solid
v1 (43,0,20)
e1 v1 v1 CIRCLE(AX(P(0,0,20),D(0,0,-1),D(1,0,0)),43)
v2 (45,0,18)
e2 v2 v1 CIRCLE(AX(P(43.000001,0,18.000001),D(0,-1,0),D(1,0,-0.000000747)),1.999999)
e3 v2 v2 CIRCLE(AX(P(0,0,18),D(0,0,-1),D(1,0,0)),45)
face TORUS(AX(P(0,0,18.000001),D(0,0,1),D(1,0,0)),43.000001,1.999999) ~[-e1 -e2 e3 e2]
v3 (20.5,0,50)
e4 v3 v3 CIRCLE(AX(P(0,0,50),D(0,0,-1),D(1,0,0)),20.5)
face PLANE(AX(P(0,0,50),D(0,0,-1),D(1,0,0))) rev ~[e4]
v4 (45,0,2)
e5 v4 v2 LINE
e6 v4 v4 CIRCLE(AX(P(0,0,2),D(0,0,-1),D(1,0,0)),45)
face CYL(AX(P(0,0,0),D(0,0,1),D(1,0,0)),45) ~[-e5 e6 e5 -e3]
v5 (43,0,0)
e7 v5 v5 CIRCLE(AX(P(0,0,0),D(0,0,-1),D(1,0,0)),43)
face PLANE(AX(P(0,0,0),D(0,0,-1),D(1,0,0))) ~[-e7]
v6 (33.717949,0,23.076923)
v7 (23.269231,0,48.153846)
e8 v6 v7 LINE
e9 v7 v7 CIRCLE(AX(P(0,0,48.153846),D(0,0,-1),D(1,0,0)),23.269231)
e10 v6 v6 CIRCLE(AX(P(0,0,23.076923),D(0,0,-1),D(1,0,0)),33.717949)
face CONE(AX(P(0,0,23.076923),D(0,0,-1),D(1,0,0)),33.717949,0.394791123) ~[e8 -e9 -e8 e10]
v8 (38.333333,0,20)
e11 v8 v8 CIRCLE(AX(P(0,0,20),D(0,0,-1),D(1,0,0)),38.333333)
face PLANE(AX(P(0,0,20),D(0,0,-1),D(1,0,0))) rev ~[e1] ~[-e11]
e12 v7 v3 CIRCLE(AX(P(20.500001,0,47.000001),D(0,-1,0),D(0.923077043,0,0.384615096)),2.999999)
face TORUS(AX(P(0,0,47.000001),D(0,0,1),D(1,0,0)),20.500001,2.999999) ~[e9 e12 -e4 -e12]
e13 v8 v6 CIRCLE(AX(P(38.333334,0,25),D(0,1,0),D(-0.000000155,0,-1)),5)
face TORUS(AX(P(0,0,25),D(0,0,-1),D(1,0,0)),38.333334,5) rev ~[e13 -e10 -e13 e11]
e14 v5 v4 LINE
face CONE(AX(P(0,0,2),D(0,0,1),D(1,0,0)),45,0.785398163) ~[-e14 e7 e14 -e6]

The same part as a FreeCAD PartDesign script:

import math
import FreeCAD as App
import Part
import Sketcher
Q = App.Units.Quantity


def edges_at(feature, points):
    """Names of the edges that pass closest to the given points."""
    edges = feature.Shape.Edges
    near = lambda p: min(range(len(edges)), key=lambda i: edges[i].distToShape(Part.Vertex(*p))[0])
    return sorted({f"Edge{near(p) + 1}" for p in points})

doc = App.newDocument("Part")
body = doc.addObject("PartDesign::Body", "Body")

sketch1 = body.newObject("Sketcher::SketchObject", "Sketch")
sketch1.AttachmentSupport = (doc.getObject("XZ_Plane"), [""])
sketch1.MapMode = "FlatFace"
sketch1.addGeometry(Part.LineSegment(App.Vector(20.5, 50, 0), App.Vector(0, 50, 0)), False)
sketch1.addGeometry(Part.LineSegment(App.Vector(0, 50, 0), App.Vector(0, 0, 0)), False)
sketch1.addGeometry(Part.LineSegment(App.Vector(0, 0, 0), App.Vector(45, 0, 0)), False)
sketch1.addGeometry(Part.LineSegment(App.Vector(45, 0, 0), App.Vector(45, 18, 0)), False)
sketch1.addGeometry(Part.ArcOfCircle(Part.Circle(App.Vector(43, 18, 0), App.Vector(0, 0, 1), 2), math.radians(0), math.radians(90)), False)
sketch1.addGeometry(Part.LineSegment(App.Vector(43, 20, 0), App.Vector(38.3, 20, 0)), False)
sketch1.addGeometry(Part.ArcOfCircle(Part.Circle(App.Vector(38.3, 25, 0), App.Vector(0, 0, 1), 5), math.radians(-157), math.radians(-90)), False)
sketch1.addGeometry(Part.LineSegment(App.Vector(33.7, 23.1, 0), App.Vector(23.3, 48.2, 0)), False)
sketch1.addGeometry(Part.ArcOfCircle(Part.Circle(App.Vector(20.5, 47, 0), App.Vector(0, 0, 1), 3), math.radians(23), math.radians(90)), False)
sketch1.addConstraint(Sketcher.Constraint("Coincident", 0, 2, 1, 1))
sketch1.addConstraint(Sketcher.Constraint("Coincident", 1, 2, 2, 1))
sketch1.addConstraint(Sketcher.Constraint("Coincident", 2, 2, 3, 1))
sketch1.addConstraint(Sketcher.Constraint("Tangent", 3, 2, 4, 1))
sketch1.addConstraint(Sketcher.Constraint("Tangent", 4, 2, 5, 1))
sketch1.addConstraint(Sketcher.Constraint("Tangent", 5, 2, 6, 2))
sketch1.addConstraint(Sketcher.Constraint("Tangent", 6, 1, 7, 1))
sketch1.addConstraint(Sketcher.Constraint("Tangent", 7, 2, 8, 1))
sketch1.addConstraint(Sketcher.Constraint("Tangent", 8, 2, 0, 1))
sketch1.addConstraint(Sketcher.Constraint("Horizontal", 0))
sketch1.addConstraint(Sketcher.Constraint("Vertical", 1))
sketch1.addConstraint(Sketcher.Constraint("Horizontal", 2))
sketch1.addConstraint(Sketcher.Constraint("Vertical", 3))
sketch1.addConstraint(Sketcher.Constraint("Horizontal", 5))
sketch1.addConstraint(Sketcher.Constraint("Coincident", 1, 2, -1, 1))
sketch1.addConstraint(Sketcher.Constraint("Radius", 4, Q("1.999999 mm")))
sketch1.addConstraint(Sketcher.Constraint("Radius", 6, Q("5 mm")))
sketch1.addConstraint(Sketcher.Constraint("Radius", 8, Q("2.999999 mm")))
sketch1.addConstraint(Sketcher.Constraint("DistanceX", 2, 1, 2, 2, Q("45 mm")))
sketch1.addConstraint(Sketcher.Constraint("DistanceY", 1, 2, 1, 1, Q("50 mm")))
sketch1.addConstraint(Sketcher.Constraint("DistanceY", 3, 1, 3, 2, Q("18 mm")))
sketch1.addConstraint(Sketcher.Constraint("DistanceX", 0, 2, 0, 1, Q("20.5 mm")))
sketch1.addConstraint(Sketcher.Constraint("DistanceX", 5, 2, 5, 1, Q("4.666667 mm")))
revolution = body.newObject("PartDesign::Revolution", "Revolution")
revolution.Profile = sketch1
revolution.ReferenceAxis = (sketch1, ["V_Axis"])
revolution.Angle = 360
doc.recompute()

chamfer = body.newObject("PartDesign::Chamfer", "Chamfer")
chamfer.Base = (revolution, edges_at(revolution, [(-45, 0, 0)]))
chamfer.Size = 2

doc.recompute()
